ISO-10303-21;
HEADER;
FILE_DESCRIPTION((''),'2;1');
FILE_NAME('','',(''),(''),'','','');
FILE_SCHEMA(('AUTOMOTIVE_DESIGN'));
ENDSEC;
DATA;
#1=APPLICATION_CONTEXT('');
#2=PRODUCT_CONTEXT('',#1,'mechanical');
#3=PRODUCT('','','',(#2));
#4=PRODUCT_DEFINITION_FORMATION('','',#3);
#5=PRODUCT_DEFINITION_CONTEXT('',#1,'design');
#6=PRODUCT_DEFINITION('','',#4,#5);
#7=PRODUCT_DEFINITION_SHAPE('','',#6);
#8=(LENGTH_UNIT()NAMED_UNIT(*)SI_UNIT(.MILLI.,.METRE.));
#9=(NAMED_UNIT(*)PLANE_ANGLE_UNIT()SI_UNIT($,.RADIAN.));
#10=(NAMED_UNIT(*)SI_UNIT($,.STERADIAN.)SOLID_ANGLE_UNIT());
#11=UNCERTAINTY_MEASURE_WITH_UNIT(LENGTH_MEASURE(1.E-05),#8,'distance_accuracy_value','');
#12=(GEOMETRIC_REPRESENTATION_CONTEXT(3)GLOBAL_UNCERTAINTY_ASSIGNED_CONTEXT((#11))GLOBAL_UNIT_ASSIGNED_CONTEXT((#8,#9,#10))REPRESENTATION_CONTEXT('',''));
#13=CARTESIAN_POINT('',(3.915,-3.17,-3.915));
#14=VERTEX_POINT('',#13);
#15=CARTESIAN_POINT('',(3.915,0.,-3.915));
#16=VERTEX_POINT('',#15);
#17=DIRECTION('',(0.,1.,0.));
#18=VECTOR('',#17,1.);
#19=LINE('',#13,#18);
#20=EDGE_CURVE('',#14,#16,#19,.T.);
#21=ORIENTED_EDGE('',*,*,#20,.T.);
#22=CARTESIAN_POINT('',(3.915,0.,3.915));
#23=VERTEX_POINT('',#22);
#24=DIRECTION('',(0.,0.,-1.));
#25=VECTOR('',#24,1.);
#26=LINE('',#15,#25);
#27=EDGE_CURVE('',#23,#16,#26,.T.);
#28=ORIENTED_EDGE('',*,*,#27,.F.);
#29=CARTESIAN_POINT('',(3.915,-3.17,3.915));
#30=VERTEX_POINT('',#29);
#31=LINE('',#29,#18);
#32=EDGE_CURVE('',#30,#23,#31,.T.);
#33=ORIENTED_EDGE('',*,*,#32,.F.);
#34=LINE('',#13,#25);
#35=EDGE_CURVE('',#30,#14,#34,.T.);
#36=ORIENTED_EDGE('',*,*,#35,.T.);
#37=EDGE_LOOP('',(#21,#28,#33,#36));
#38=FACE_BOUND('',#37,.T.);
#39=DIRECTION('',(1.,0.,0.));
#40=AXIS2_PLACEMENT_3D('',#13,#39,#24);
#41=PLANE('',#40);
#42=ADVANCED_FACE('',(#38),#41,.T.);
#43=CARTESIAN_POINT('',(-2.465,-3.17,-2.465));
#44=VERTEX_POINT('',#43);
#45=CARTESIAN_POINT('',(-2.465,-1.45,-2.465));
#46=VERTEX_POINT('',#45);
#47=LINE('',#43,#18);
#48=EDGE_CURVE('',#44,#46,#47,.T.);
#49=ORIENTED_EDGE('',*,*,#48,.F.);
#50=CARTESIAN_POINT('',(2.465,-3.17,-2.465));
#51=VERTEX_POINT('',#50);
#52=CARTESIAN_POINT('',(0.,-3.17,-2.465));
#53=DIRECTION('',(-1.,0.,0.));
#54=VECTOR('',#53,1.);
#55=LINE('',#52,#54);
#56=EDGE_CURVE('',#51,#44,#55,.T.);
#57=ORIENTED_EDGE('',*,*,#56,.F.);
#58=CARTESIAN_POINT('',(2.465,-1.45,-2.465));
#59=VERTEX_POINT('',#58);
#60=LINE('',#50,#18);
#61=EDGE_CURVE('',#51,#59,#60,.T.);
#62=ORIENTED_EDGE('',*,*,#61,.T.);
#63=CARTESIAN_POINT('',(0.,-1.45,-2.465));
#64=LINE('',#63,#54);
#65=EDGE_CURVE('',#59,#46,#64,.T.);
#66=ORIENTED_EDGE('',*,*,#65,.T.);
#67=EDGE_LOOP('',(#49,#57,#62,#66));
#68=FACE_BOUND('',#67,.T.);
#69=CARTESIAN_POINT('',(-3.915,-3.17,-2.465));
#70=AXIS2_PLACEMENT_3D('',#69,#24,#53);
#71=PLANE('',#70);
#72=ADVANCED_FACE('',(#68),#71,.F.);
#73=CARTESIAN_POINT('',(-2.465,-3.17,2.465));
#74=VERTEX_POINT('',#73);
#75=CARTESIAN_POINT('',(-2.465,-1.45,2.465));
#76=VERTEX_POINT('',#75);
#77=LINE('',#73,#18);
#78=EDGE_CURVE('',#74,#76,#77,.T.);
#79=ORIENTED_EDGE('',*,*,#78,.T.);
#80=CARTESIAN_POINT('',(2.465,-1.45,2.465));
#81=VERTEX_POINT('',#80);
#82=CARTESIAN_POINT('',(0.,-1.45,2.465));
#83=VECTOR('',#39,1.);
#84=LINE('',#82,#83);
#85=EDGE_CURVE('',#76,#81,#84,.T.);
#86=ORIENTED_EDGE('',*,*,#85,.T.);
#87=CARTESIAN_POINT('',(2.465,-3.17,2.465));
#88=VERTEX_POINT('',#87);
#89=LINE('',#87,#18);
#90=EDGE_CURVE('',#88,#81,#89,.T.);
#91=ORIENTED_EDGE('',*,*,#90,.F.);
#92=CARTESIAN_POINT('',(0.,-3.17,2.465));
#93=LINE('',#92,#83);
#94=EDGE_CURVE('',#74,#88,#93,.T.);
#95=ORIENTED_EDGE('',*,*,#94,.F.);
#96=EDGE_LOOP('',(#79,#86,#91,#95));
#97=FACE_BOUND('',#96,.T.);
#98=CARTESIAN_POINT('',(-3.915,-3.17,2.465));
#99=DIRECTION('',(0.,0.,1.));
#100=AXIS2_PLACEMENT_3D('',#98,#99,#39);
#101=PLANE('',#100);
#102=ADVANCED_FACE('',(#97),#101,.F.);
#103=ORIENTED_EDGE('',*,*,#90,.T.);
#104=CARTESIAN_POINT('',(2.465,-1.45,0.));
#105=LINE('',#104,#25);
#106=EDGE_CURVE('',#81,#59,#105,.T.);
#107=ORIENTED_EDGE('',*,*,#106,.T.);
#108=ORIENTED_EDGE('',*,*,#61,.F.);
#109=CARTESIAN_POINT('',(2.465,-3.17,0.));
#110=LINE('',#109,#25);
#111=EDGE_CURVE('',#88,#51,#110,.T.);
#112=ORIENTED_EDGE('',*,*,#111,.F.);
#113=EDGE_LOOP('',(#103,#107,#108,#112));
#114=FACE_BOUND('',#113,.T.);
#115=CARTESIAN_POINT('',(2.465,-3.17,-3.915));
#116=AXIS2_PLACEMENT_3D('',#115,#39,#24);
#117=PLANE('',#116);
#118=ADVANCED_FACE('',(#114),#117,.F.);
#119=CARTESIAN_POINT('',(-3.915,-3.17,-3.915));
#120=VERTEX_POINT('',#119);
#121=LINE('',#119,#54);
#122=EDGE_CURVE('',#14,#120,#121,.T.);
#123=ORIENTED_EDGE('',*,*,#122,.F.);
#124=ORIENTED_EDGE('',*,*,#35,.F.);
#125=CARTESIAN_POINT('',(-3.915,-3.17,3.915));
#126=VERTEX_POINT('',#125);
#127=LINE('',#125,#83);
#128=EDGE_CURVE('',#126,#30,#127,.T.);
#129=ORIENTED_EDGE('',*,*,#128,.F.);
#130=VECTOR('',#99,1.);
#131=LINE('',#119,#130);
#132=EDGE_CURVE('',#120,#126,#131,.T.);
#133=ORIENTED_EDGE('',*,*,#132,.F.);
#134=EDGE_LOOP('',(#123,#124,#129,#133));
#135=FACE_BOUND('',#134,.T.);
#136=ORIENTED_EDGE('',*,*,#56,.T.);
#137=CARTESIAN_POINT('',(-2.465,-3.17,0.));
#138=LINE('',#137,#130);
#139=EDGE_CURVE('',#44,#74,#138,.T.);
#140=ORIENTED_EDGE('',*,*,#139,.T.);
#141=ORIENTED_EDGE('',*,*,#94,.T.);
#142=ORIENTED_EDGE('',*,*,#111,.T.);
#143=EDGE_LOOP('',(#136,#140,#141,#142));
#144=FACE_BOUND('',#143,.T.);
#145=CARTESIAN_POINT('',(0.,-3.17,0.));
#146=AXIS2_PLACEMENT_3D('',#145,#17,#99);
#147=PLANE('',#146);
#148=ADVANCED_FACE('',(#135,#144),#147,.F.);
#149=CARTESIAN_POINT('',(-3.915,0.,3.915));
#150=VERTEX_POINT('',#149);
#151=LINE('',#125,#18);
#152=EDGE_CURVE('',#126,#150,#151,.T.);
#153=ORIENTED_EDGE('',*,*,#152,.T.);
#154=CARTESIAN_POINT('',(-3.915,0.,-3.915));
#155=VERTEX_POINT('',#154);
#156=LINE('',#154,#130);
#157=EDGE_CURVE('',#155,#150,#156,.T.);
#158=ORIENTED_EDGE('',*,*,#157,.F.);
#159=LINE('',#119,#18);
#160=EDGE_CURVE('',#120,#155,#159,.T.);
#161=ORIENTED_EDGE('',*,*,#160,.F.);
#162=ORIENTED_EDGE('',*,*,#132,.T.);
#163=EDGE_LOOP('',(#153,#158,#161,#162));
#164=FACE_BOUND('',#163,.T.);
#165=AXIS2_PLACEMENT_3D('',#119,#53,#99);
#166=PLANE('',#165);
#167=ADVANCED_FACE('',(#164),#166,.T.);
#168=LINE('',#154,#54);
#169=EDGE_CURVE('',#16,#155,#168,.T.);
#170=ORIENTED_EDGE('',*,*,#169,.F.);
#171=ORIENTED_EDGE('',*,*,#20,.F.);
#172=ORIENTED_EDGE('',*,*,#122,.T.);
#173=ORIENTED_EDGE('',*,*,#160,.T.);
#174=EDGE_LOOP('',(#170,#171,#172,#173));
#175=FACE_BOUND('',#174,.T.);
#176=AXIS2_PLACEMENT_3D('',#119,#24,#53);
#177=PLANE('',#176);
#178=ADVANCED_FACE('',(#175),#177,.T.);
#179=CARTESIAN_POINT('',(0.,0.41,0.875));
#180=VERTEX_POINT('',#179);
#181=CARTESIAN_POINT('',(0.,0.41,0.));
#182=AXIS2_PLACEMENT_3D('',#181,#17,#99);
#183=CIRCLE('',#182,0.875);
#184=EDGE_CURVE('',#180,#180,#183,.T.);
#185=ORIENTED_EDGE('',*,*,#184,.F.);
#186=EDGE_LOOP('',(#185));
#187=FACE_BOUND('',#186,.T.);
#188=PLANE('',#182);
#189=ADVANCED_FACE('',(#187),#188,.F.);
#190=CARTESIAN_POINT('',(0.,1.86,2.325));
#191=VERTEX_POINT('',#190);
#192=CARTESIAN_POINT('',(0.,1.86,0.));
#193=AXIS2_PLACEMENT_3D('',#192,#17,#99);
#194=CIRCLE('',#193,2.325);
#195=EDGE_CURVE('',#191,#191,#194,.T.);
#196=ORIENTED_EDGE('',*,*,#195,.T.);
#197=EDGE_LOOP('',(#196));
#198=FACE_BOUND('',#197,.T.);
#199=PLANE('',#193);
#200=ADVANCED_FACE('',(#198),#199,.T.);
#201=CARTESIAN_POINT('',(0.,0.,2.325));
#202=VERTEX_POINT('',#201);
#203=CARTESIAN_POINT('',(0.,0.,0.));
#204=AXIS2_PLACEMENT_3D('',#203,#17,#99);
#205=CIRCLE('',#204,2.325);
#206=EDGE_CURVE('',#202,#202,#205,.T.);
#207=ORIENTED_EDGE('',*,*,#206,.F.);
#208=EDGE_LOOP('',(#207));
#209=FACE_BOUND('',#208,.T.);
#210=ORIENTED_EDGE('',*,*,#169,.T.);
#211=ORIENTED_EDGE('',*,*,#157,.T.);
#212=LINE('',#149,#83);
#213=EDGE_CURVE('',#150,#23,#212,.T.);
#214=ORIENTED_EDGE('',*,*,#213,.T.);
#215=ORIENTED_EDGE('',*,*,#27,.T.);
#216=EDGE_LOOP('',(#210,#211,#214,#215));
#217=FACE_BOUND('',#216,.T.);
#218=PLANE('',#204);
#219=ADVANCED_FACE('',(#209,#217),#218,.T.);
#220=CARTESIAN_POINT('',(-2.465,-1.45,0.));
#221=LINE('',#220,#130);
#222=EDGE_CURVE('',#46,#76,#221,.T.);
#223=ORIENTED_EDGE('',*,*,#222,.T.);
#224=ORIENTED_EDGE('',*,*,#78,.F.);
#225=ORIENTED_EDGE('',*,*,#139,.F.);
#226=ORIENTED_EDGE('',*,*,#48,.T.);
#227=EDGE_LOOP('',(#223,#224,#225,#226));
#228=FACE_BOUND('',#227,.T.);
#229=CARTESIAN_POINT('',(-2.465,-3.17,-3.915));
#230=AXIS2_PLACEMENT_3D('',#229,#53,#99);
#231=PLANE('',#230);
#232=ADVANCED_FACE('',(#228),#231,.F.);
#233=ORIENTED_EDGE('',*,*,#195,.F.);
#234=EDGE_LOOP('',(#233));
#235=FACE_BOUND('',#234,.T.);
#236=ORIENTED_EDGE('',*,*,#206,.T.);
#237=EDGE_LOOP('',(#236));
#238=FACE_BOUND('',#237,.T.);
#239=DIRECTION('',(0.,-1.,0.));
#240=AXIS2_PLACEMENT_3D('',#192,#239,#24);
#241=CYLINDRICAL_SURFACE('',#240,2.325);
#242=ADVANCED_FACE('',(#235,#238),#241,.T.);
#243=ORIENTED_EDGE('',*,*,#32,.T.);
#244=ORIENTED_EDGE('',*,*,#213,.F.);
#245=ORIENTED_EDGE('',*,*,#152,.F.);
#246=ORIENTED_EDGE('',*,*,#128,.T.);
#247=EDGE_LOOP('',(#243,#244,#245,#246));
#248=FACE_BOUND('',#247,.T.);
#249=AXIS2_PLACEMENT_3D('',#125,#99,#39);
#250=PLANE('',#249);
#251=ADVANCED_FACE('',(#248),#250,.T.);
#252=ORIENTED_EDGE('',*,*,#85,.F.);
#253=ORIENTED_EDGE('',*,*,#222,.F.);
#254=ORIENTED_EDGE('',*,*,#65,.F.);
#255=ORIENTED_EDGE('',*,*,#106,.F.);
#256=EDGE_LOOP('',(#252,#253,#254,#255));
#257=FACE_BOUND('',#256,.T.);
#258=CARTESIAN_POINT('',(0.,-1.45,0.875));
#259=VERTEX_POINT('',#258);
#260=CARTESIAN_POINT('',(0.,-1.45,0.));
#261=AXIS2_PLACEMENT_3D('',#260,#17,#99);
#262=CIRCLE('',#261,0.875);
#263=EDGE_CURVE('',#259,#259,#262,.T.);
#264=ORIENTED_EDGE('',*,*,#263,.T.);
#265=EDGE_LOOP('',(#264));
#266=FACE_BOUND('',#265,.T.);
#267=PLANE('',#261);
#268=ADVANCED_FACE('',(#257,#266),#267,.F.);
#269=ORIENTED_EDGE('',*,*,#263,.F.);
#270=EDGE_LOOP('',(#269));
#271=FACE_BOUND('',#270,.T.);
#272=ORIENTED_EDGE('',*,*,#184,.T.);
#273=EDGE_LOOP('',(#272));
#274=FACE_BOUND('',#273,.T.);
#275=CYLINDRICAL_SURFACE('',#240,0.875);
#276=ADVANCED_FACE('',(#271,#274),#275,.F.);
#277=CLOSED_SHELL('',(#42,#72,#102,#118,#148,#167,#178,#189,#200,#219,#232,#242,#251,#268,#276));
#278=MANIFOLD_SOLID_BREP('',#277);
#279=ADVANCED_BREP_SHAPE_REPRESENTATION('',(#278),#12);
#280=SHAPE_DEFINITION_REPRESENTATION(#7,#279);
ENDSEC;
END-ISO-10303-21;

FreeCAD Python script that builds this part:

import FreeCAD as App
import Part
import Sketcher


def faces_at(feature, points):
    """Names of the faces that lie closest to the given points."""
    faces = feature.Shape.Faces
    near = lambda p: min(range(len(faces)), key=lambda i: faces[i].distToShape(Part.Vertex(*p))[0])
    return sorted({f"Face{near(p) + 1}" for p in points})


def add_polygon(sketch, points):
    """Adds a closed chain of lines whose ends are joined by coincident constraints."""
    first, n = sketch.GeometryCount, len(points)
    for a, b in zip(points, points[1:] + points[:1]):
        sketch.addGeometry(Part.LineSegment(App.Vector(*a, 0), App.Vector(*b, 0)), False)
    for i in range(n):
        sketch.addConstraint(Sketcher.Constraint("Coincident", first + i, 2, first + (i + 1) % n, 1))

doc = App.newDocument("Part")
body = doc.addObject("PartDesign::Body", "Body")

# Sketch on XZ plane
sketch1 = body.newObject("Sketcher::SketchObject", "Sketch")
sketch1.AttachmentSupport = (doc.getObject("XZ_Plane"), [""])
sketch1.MapMode = "FlatFace"
add_polygon(sketch1, [(-4, -4), (-4, 4), (4, 4), (4, -4)])  # lines 0-3
sketch1.addConstraint(Sketcher.Constraint("Vertical", 0))
sketch1.addConstraint(Sketcher.Constraint("Horizontal", 1))
sketch1.addConstraint(Sketcher.Constraint("Vertical", 2))
sketch1.addConstraint(Sketcher.Constraint("Horizontal", 3))
sketch1.addConstraint(Sketcher.Constraint("Symmetric", 0, 2, 2, 2, -1, 1))
sketch1.addConstraint(Sketcher.Constraint("Equal", 3, 0))
sketch1.addConstraint(Sketcher.Constraint("DistanceX", 1, 1, 1, 2, 7.83))
pad1 = body.newObject("PartDesign::Pad", "Pad")
pad1.Profile = sketch1
pad1.Length = 3.17

# Sketch on XZ plane
sketch2 = body.newObject("Sketcher::SketchObject", "Sketch001")
sketch2.AttachmentSupport = (doc.getObject("XZ_Plane"), [""])
sketch2.MapMode = "FlatFace"
sketch2.addGeometry(Part.Circle(App.Vector(0, 0, 0), App.Vector(0, 0, 1), 2.3), False)
sketch2.addConstraint(Sketcher.Constraint("Coincident", 0, 3, -1, 1))
sketch2.addConstraint(Sketcher.Constraint("Diameter", 0, 4.65))
pad2 = body.newObject("PartDesign::Pad", "Pad001")
pad2.Profile = sketch2
pad2.Length = 1.86
pad2.Reversed = True
doc.recompute()

thickness = body.newObject("PartDesign::Thickness", "Thickness")
thickness.Base = (pad2, faces_at(pad2, [(0, -3.17, 0)]))
thickness.Value = 1.45
thickness.Reversed = True
thickness.Join = "Intersection"

doc.recompute()
